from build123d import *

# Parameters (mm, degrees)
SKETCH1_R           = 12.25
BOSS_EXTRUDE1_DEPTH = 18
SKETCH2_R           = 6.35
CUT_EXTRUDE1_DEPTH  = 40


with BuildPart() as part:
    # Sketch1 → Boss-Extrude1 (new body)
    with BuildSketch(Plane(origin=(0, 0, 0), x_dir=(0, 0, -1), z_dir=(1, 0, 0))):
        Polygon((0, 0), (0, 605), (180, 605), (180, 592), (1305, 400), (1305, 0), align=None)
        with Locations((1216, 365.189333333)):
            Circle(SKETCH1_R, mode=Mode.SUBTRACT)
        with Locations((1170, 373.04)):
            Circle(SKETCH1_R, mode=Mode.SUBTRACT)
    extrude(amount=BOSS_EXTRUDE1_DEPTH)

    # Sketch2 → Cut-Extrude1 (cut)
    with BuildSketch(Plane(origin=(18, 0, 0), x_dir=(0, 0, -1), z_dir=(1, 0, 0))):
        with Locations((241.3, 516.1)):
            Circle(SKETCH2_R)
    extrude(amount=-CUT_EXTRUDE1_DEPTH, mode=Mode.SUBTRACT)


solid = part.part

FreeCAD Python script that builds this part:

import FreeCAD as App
import Part
import Sketcher
from FreeCAD import Vector
Q = App.Units.Quantity


def add_polygon(sketch, points):
    """Adds a closed chain of lines whose ends are joined by coincident constraints."""
    first, n = sketch.GeometryCount, len(points)
    for a, b in zip(points, points[1:] + points[:1]):
        sketch.addGeometry(Part.LineSegment(App.Vector(*a, 0), App.Vector(*b, 0)), False)
    for i in range(n):
        sketch.addConstraint(Sketcher.Constraint("Coincident", first + i, 2, first + (i + 1) % n, 1))

doc = App.newDocument("Part")
body = doc.addObject("PartDesign::Body", "Body")

# Sketch on YZ plane
sketch1 = body.newObject("Sketcher::SketchObject", "Sketch")
sketch1.AttachmentSupport = (doc.getObject("YZ_Plane"), [""])
sketch1.MapMode = "FlatFace"
add_polygon(sketch1, [(605, 0), (0, 0), (0, -1305), (400, -1305), (592, -180), (605, -180)])  # lines 0-5
sketch1.addGeometry(Part.Circle(Vector(365, -1216, 0), Vector(0, 0, 1), 12), False)  # 6
sketch1.addGeometry(Part.Circle(Vector(373, -1170, 0), Vector(0, 0, 1), 12), False)  # 7
sketch1.addConstraint(Sketcher.Constraint("Horizontal", 0))
sketch1.addConstraint(Sketcher.Constraint("Vertical", 1))
sketch1.addConstraint(Sketcher.Constraint("Horizontal", 2))
sketch1.addConstraint(Sketcher.Constraint("Horizontal", 4))
sketch1.addConstraint(Sketcher.Constraint("Vertical", 5))
sketch1.addConstraint(Sketcher.Constraint("Coincident", 0, 2, -1, 1))
sketch1.addConstraint(Sketcher.Constraint("Equal", 6, 7))
sketch1.addConstraint(Sketcher.Constraint("Diameter", 6, Q("24.5 mm")))
sketch1.addConstraint(Sketcher.Constraint("DistanceX", 0, 2, 0, 1, Q("605 mm")))
sketch1.addConstraint(Sketcher.Constraint("DistanceX", 2, 1, 2, 2, Q("400 mm")))
sketch1.addConstraint(Sketcher.Constraint("DistanceX", 4, 1, 4, 2, Q("13 mm")))
sketch1.addConstraint(Sketcher.Constraint("DistanceY", 1, 2, 1, 1, Q("1305 mm")))
sketch1.addConstraint(Sketcher.Constraint("DistanceY", 5, 1, 5, 2, Q("180 mm")))
sketch1.addConstraint(Sketcher.Constraint("DistanceY", 6, 3, -1, 1, Q("1216 mm")))
sketch1.addConstraint(Sketcher.Constraint("DistanceY", 7, 3, -1, 1, Q("1170 mm")))
sketch1.addConstraint(Sketcher.Constraint("DistanceX", -1, 1, 7, 3, Q("373.04 mm")))
sketch1.addConstraint(Sketcher.Constraint("DistanceX", -1, 1, 6, 3, Q("365.189333 mm")))
pad1 = body.newObject("PartDesign::Pad", "Pad")
pad1.Profile = sketch1
pad1.Length = 18

# Sketch on YZ plane
sketch2 = body.newObject("Sketcher::SketchObject", "Sketch001")
sketch2.AttachmentSupport = (doc.getObject("YZ_Plane"), [""])
sketch2.MapMode = "FlatFace"
sketch2.AttachmentOffset = App.Placement(Vector(0, 0, 18), App.Rotation())
sketch2.addGeometry(Part.Circle(Vector(516, -241, 0), Vector(0, 0, 1), 6), False)
sketch2.addConstraint(Sketcher.Constraint("Diameter", 0, Q("12.7 mm")))
sketch2.addConstraint(Sketcher.Constraint("DistanceX", -1, 1, 0, 3, Q("516.1 mm")))
sketch2.addConstraint(Sketcher.Constraint("DistanceY", 0, 3, -1, 1, Q("241.3 mm")))
pocket1 = body.newObject("PartDesign::Pocket", "Pocket")
pocket1.Profile = sketch2
pocket1.Length = 40

doc.recompute()
